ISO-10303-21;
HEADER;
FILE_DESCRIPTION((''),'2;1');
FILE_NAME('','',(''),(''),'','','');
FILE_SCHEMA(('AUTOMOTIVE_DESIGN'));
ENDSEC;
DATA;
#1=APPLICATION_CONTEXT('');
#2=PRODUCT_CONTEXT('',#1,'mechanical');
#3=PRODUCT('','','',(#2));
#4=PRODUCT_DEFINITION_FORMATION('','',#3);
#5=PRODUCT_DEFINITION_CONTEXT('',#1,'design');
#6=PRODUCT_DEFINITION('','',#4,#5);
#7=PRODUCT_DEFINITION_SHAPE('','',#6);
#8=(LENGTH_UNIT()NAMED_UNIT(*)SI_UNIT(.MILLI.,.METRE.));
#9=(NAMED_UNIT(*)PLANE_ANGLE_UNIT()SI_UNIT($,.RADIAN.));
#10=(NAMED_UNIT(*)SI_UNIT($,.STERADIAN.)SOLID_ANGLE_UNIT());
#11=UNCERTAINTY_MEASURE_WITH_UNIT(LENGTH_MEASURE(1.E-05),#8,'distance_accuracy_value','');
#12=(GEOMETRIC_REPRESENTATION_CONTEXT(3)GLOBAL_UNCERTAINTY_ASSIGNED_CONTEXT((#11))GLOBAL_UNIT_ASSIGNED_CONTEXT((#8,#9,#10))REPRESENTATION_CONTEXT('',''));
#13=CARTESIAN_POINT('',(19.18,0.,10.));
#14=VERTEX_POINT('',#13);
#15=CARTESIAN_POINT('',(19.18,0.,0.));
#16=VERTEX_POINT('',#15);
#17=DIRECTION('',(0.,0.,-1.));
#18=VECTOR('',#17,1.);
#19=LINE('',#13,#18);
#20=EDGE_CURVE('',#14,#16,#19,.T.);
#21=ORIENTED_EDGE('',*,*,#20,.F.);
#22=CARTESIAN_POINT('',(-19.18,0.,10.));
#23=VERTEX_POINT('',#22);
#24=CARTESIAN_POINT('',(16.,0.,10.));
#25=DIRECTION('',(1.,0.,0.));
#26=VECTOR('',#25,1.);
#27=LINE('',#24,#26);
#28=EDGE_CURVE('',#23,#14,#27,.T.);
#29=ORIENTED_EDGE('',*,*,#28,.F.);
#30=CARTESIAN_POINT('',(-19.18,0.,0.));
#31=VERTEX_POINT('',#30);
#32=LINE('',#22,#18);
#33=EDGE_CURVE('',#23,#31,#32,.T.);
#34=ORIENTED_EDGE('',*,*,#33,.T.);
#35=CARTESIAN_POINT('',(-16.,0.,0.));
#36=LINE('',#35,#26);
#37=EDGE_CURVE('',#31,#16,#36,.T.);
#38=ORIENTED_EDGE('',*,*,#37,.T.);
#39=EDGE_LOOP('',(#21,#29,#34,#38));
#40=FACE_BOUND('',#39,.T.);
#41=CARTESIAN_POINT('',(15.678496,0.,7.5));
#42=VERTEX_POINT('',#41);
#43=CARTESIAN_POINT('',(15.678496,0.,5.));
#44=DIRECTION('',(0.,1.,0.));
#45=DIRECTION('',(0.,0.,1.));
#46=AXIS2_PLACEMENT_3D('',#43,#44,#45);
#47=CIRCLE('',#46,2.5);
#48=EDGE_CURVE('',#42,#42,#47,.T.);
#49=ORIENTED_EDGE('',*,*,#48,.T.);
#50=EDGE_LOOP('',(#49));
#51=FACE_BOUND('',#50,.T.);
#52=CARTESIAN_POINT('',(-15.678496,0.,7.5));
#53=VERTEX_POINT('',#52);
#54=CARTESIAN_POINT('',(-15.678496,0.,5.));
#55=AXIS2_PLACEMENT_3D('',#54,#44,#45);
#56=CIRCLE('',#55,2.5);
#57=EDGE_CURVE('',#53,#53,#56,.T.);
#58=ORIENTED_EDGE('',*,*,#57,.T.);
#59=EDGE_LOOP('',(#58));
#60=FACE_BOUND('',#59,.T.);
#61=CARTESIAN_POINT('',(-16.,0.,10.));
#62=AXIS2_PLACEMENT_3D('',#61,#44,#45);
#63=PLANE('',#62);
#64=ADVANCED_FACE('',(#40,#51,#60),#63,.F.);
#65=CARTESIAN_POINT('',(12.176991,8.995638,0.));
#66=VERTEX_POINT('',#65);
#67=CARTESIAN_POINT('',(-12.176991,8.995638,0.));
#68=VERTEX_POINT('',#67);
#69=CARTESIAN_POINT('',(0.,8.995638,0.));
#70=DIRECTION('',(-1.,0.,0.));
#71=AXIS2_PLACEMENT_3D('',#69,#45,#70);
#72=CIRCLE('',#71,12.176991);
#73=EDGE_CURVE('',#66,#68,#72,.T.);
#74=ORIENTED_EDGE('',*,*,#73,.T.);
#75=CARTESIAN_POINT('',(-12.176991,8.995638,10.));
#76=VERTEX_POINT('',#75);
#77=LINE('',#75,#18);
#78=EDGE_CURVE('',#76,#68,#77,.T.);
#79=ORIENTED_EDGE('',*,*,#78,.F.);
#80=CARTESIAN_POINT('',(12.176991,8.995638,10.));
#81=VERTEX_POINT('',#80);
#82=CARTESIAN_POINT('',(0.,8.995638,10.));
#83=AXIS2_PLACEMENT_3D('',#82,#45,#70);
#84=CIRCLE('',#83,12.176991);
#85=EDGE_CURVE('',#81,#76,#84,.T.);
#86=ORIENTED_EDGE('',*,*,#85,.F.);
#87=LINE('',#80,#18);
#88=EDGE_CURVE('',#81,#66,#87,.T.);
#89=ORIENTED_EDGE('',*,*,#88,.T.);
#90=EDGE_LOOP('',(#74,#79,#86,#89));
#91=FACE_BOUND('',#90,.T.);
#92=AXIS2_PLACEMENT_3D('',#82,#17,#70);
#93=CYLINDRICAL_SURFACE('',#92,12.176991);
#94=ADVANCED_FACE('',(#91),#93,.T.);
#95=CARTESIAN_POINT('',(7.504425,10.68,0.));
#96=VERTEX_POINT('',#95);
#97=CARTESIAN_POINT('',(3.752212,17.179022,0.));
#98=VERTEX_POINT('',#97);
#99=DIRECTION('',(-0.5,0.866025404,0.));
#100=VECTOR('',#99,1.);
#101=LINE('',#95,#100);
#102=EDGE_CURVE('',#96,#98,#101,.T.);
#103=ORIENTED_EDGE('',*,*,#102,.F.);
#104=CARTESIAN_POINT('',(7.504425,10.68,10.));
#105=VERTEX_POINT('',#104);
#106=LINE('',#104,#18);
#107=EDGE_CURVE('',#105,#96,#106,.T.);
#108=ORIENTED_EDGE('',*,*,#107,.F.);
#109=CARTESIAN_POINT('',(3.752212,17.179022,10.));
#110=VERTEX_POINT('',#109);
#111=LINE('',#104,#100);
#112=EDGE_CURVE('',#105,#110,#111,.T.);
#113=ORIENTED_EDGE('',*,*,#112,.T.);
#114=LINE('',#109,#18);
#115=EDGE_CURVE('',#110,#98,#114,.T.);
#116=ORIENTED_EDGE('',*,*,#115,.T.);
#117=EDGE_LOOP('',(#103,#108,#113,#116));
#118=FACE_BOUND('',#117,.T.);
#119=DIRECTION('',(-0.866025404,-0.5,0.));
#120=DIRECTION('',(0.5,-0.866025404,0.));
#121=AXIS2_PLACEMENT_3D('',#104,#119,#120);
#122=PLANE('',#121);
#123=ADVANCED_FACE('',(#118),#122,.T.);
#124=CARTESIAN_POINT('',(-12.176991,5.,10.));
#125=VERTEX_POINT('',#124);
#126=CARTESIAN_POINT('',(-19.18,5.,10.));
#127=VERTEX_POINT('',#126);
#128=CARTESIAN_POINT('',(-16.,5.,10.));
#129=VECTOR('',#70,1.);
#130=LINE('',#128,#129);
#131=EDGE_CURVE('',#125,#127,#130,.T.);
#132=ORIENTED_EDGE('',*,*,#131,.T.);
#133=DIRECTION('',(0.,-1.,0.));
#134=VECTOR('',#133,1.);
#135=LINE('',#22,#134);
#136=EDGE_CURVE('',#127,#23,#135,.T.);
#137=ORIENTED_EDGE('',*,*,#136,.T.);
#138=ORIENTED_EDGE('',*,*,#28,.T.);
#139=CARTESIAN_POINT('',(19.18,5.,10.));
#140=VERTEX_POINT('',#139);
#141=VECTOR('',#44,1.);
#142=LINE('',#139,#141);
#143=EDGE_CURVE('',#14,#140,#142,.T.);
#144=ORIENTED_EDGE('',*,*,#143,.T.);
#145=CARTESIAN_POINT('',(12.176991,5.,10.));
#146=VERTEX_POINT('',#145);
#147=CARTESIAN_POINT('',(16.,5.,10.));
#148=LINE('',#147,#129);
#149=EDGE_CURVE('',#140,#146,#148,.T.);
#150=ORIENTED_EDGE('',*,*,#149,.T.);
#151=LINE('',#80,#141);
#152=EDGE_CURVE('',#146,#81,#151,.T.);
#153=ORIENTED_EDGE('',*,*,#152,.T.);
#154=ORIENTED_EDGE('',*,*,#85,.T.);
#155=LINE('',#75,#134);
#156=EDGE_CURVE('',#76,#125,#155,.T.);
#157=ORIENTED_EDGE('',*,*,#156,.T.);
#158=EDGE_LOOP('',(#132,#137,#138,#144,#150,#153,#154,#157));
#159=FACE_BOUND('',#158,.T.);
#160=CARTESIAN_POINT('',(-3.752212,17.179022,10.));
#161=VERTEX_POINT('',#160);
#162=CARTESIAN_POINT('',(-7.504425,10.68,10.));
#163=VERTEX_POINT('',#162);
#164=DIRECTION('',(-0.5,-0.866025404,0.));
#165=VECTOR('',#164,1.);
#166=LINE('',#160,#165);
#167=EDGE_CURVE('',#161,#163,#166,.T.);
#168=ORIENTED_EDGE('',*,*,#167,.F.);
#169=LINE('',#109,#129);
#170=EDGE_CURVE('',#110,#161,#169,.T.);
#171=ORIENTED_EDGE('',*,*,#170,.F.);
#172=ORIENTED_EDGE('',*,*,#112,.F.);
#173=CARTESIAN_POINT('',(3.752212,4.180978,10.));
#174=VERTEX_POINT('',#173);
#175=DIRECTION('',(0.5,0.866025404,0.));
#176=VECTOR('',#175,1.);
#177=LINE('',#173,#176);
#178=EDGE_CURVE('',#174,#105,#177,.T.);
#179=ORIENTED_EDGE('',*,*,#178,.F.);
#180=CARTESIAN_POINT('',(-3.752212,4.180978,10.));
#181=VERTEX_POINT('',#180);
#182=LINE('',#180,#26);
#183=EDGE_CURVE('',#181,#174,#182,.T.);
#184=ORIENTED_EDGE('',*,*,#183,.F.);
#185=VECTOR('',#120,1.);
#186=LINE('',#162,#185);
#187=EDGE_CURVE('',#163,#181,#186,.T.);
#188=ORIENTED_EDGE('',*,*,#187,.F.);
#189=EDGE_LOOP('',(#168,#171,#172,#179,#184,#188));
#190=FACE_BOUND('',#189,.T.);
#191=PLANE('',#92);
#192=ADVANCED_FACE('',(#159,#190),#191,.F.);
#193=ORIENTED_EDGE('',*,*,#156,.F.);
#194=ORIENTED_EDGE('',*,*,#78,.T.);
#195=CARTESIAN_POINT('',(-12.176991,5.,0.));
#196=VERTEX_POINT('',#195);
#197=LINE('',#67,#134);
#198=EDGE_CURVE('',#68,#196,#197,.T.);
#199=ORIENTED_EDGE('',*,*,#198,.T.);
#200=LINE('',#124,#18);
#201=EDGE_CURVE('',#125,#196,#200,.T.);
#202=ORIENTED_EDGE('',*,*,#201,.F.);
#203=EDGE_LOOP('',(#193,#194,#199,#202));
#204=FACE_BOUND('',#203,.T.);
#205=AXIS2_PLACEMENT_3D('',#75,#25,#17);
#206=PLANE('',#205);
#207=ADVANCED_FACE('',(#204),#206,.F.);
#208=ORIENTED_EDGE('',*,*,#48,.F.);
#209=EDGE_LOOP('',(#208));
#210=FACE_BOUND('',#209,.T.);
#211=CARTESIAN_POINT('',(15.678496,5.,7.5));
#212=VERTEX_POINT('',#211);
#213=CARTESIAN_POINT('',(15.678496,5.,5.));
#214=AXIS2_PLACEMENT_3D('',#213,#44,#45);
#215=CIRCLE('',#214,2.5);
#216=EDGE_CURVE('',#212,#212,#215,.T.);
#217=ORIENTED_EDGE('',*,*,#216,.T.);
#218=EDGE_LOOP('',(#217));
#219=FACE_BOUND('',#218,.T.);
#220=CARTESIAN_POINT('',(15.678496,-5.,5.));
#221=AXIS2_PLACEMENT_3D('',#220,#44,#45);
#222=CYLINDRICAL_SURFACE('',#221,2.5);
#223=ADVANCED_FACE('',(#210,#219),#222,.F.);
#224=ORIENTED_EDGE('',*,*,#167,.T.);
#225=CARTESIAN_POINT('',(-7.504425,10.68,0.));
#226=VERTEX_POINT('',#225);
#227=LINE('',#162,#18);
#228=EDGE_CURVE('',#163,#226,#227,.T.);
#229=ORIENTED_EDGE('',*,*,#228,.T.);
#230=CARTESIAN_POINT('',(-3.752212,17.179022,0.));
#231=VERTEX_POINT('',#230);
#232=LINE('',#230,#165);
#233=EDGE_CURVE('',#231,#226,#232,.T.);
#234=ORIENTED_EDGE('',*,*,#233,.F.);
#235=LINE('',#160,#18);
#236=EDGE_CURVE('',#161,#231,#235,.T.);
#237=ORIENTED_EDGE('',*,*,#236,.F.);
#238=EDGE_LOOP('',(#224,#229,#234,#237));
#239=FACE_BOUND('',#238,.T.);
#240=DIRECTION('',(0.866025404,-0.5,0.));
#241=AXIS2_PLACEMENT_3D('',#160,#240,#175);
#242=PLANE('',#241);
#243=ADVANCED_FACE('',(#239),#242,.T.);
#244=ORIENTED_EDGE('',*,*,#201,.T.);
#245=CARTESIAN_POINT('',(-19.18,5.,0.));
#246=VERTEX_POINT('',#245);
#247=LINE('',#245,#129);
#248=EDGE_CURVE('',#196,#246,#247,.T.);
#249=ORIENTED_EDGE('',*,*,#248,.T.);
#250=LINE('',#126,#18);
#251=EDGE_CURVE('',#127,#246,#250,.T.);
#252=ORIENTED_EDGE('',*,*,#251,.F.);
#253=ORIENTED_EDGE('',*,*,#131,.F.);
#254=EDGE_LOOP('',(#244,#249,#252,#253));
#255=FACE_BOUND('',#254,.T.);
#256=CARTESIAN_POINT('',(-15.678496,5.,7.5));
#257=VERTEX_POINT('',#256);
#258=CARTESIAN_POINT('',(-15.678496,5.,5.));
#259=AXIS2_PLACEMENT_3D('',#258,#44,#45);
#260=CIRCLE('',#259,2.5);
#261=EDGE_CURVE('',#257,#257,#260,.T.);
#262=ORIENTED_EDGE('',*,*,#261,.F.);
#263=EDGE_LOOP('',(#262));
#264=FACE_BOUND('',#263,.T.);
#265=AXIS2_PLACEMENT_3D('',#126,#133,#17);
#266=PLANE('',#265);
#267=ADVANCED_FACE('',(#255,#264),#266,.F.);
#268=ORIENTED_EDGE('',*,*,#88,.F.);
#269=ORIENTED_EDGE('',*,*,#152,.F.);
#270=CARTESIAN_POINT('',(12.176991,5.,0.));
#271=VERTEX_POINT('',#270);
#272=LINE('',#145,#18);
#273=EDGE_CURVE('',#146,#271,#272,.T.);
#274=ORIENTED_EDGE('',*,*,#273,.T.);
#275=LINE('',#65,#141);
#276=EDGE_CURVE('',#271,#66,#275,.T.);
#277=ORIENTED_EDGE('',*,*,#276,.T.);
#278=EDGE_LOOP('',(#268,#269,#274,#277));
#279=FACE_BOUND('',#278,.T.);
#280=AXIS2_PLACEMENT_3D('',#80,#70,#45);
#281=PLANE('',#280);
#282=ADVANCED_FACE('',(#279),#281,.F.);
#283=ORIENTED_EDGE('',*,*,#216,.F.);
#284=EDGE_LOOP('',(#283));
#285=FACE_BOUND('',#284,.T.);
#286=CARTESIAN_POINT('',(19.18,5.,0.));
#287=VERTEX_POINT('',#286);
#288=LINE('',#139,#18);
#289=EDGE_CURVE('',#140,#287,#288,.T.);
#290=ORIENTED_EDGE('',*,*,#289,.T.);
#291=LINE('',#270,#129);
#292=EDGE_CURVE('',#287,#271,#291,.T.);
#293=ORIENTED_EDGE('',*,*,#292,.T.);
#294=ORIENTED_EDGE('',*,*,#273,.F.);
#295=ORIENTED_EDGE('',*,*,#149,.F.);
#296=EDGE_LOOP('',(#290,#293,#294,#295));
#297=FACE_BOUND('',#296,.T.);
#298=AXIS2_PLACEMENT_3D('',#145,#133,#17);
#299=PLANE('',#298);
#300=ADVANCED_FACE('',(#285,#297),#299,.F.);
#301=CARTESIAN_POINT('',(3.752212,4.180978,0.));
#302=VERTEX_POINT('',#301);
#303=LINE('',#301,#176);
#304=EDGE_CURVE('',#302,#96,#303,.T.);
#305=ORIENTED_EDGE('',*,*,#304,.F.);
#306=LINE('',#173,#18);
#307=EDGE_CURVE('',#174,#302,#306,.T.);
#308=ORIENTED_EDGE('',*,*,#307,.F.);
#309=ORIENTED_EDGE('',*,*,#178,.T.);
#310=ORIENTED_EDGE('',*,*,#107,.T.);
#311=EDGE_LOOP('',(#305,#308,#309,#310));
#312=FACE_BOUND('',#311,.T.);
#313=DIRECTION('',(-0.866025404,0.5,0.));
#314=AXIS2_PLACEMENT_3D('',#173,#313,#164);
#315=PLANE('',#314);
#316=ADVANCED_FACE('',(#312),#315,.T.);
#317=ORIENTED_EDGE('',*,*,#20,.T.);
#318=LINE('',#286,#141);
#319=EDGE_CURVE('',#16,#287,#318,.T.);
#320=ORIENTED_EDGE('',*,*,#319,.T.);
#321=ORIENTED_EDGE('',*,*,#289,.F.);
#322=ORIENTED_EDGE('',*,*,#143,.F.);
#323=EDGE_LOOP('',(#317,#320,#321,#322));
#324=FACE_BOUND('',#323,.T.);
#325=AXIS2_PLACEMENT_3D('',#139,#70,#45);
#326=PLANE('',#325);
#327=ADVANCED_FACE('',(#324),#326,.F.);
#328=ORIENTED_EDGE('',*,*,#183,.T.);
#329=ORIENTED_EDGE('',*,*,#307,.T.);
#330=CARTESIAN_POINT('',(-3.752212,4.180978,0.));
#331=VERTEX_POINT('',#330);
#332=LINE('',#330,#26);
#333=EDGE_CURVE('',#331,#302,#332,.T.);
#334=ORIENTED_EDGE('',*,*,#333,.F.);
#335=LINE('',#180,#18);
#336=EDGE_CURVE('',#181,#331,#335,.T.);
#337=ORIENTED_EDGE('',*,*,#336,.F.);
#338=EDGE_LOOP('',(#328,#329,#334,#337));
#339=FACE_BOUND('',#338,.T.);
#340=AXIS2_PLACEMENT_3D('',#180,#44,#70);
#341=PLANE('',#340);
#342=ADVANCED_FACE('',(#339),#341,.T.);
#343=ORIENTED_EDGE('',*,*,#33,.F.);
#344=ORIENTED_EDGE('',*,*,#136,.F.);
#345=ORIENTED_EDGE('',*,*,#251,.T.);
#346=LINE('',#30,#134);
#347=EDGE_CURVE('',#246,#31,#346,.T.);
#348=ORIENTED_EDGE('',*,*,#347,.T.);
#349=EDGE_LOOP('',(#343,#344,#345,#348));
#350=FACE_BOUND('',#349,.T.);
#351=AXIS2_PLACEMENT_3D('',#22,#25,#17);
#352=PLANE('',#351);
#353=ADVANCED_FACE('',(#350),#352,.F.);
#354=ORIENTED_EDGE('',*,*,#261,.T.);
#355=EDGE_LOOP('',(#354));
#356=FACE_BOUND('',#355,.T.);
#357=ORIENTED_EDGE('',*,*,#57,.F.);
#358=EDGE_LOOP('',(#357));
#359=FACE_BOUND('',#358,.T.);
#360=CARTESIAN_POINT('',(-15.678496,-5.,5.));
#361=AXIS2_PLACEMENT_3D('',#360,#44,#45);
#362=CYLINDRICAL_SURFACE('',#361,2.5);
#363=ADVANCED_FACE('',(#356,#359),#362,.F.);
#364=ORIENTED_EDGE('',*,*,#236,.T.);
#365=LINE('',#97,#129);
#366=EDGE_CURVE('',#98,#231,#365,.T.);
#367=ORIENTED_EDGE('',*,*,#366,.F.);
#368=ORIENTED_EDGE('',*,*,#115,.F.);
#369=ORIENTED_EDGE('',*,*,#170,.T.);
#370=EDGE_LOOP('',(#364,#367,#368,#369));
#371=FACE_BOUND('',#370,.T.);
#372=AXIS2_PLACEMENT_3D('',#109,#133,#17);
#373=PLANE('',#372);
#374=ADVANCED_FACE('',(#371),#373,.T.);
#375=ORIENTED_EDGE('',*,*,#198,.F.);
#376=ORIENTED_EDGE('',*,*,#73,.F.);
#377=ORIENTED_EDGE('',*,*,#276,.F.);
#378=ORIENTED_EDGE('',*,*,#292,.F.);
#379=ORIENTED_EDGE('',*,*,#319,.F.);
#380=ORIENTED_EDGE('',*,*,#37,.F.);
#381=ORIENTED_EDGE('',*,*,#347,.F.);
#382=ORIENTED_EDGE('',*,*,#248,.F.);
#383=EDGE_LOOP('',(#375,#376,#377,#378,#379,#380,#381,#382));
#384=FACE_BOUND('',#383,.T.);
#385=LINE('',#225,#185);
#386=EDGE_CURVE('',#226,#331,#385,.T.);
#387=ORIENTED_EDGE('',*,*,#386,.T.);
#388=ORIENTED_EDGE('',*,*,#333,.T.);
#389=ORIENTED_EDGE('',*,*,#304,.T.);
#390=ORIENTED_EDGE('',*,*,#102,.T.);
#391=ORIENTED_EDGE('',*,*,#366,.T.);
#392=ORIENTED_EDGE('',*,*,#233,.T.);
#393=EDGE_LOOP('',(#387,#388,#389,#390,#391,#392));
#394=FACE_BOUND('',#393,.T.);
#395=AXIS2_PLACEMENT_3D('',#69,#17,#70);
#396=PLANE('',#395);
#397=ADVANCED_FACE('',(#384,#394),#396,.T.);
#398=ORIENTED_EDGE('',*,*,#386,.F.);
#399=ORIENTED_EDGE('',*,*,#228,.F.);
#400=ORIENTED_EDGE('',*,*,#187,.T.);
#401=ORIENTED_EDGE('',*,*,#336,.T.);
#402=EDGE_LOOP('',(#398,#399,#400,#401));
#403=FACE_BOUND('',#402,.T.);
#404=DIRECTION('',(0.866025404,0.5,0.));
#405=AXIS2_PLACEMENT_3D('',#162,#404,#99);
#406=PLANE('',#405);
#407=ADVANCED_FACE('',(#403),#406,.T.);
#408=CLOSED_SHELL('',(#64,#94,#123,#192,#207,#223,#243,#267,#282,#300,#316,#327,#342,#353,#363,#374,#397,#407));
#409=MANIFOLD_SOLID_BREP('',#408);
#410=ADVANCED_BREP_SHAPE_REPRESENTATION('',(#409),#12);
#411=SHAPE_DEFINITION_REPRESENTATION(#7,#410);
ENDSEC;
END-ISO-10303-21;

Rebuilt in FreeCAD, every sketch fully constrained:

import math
import FreeCAD as App
import Part
import Sketcher
from FreeCAD import Vector
Q = App.Units.Quantity


def add_polygon(sketch, points):
    """Adds a closed chain of lines whose ends are joined by coincident constraints."""
    first, n = sketch.GeometryCount, len(points)
    for a, b in zip(points, points[1:] + points[:1]):
        sketch.addGeometry(Part.LineSegment(App.Vector(*a, 0), App.Vector(*b, 0)), False)
    for i in range(n):
        sketch.addConstraint(Sketcher.Constraint("Coincident", first + i, 2, first + (i + 1) % n, 1))

doc = App.newDocument("Part")
params = doc.addObject("Spreadsheet::Sheet", "Params")
for row, (alias, value) in enumerate([
    ("sketch1_height", "5 mm"),
    ("sketch1_width", "38.36 mm"),
    ("pad1_length", "10 mm"),
    ("sketch2_diameter", "5 mm"),
    ("pocket1_length", "10 mm"),
], start=1):
    params.set(f"A{row}", alias)
    params.set(f"B{row}", "=" + value)
    params.setAlias(f"B{row}", alias)

body = doc.addObject("PartDesign::Body", "Body")

# Sketch on XY plane
sketch1 = body.newObject("Sketcher::SketchObject", "Sketch")
sketch1.AttachmentSupport = (doc.getObject("XY_Plane"), [""])
sketch1.MapMode = "FlatFace"
sketch1.addGeometry(Part.LineSegment(Vector(19.2, 0, 0), Vector(19.2, 5, 0)), False)  # 0
sketch1.addGeometry(Part.LineSegment(Vector(19.2, 5, 0), Vector(12.2, 5, 0)), False)  # 1
sketch1.addGeometry(Part.LineSegment(Vector(12.2, 5, 0), Vector(12.2, 9, 0)), False)  # 2
sketch1.addGeometry(Part.ArcOfCircle(Part.Circle(Vector(0, 9, 0), Vector(0, 0, 1), 12.2), math.radians(0), math.radians(180)), False)  # 3
sketch1.addGeometry(Part.LineSegment(Vector(-12.2, 9, 0), Vector(-12.2, 5, 0)), False)  # 4
sketch1.addGeometry(Part.LineSegment(Vector(-12.2, 5, 0), Vector(-19.2, 5, 0)), False)  # 5
sketch1.addGeometry(Part.LineSegment(Vector(-19.2, 5, 0), Vector(-19.2, 0, 0)), False)  # 6
sketch1.addGeometry(Part.LineSegment(Vector(-19.2, 0, 0), Vector(19.2, 0, 0)), False)  # 7
add_polygon(sketch1, [(3.8, 17.2), (7.5, 10.7), (3.8, 4.2), (-3.8, 4.2), (-7.5, 10.7), (-3.8, 17.2)])  # lines 8-13
sketch1.addConstraint(Sketcher.Constraint("Coincident", 0, 2, 1, 1))
sketch1.addConstraint(Sketcher.Constraint("Coincident", 1, 2, 2, 1))
sketch1.addConstraint(Sketcher.Constraint("Tangent", 2, 2, 3, 1))
sketch1.addConstraint(Sketcher.Constraint("Tangent", 3, 2, 4, 1))
sketch1.addConstraint(Sketcher.Constraint("Coincident", 4, 2, 5, 1))
sketch1.addConstraint(Sketcher.Constraint("Coincident", 5, 2, 6, 1))
sketch1.addConstraint(Sketcher.Constraint("Coincident", 6, 2, 7, 1))
sketch1.addConstraint(Sketcher.Constraint("Coincident", 7, 2, 0, 1))
sketch1.addConstraint(Sketcher.Constraint("Vertical", 0))
sketch1.addConstraint(Sketcher.Constraint("Horizontal", 1))
sketch1.addConstraint(Sketcher.Constraint("Vertical", 2))
sketch1.addConstraint(Sketcher.Constraint("Vertical", 4))
sketch1.addConstraint(Sketcher.Constraint("Horizontal", 5))
sketch1.addConstraint(Sketcher.Constraint("Vertical", 6))
sketch1.addConstraint(Sketcher.Constraint("Horizontal", 7))
sketch1.addConstraint(Sketcher.Constraint("Horizontal", 10))
sketch1.addConstraint(Sketcher.Constraint("Horizontal", 13))
sketch1.addConstraint(Sketcher.Constraint("Symmetric", 6, 2, 7, 2, -1, 1))
sketch1.addConstraint(Sketcher.Constraint("Symmetric", 1, 2, 4, 2, -2))
sketch1.addConstraint(Sketcher.Constraint("Symmetric", 8, 2, 11, 2, -2))
sketch1.addConstraint(Sketcher.Constraint("Parallel", 8, 11))
sketch1.addConstraint(Sketcher.Constraint("Parallel", 9, 12))
sketch1.addConstraint(Sketcher.Constraint("Vertical", 10, 2, 12, 2))
sketch1.addConstraint(Sketcher.Constraint("Vertical", 9, 2, 13, 2))
sketch1.addConstraint(Sketcher.Constraint("DistanceY", 0, 1, 0, 2, Q("5 mm")))
sketch1.addConstraint(Sketcher.Constraint("Angle", 8, Q("-60 deg")))
sketch1.addConstraint(Sketcher.Constraint("DistanceX", 7, 1, 7, 2, Q("38.36 mm")))
sketch1.addConstraint(Sketcher.Constraint("DistanceY", -1, 1, 8, 2, Q("10.68 mm")))
sketch1.addConstraint(Sketcher.Constraint("Radius", 3, Q("12.176991 mm")))
sketch1.addConstraint(Sketcher.Constraint("DistanceY", 2, 1, 2, 2, Q("3.995638 mm")))
sketch1.addConstraint(Sketcher.Constraint("DistanceX", 10, 2, 10, 1, Q("7.504425 mm")))
sketch1.addConstraint(Sketcher.Constraint("DistanceY", 9, 2, 3, 3, Q("4.814661 mm")))
sketch1.setExpression("Constraints[30]", "Params.sketch1_height")
sketch1.setExpression("Constraints[32]", "Params.sketch1_width")
pad1 = body.newObject("PartDesign::Pad", "Pad")
pad1.Profile = sketch1
pad1.setExpression("Length", "Params.pad1_length")

# Sketch on XZ plane
sketch2 = body.newObject("Sketcher::SketchObject", "Sketch001")
sketch2.AttachmentSupport = (doc.getObject("XZ_Plane"), [""])
sketch2.MapMode = "FlatFace"
sketch2.AttachmentOffset = App.Placement(Vector(0, 0, -5), App.Rotation())
sketch2.addGeometry(Part.Circle(Vector(15.7, 5, 0), Vector(0, 0, 1), 2.5), False)
sketch2.addGeometry(Part.Circle(Vector(-15.7, 5, 0), Vector(0, 0, 1), 2.5), False)
sketch2.addConstraint(Sketcher.Constraint("Equal", 0, 1))
sketch2.addConstraint(Sketcher.Constraint("Symmetric", 0, 3, 1, 3, -2))
sketch2.addConstraint(Sketcher.Constraint("Diameter", 0, Q("5 mm")))
sketch2.addConstraint(Sketcher.Constraint("DistanceY", -1, 1, 0, 3, Q("5 mm")))
sketch2.addConstraint(Sketcher.Constraint("DistanceX", 1, 3, 0, 3, Q("31.356991 mm")))
sketch2.setExpression("Constraints[2]", "Params.sketch2_diameter")
pocket1 = body.newObject("PartDesign::Pocket", "Pocket")
pocket1.Profile = sketch2
pocket1.setExpression("Length", "Params.pocket1_length")
pocket1.Reversed = True

doc.recompute()
